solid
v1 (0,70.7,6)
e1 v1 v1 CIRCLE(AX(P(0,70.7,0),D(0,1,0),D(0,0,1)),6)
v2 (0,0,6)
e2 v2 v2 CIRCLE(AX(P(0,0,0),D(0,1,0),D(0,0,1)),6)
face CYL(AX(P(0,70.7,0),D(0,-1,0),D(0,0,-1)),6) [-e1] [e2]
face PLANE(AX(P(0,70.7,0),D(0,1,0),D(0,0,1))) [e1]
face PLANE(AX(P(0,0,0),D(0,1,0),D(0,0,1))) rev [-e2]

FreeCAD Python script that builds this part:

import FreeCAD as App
import Part
import Sketcher

V = App.Vector
Q = App.Units.Quantity

doc = App.newDocument("Part")
body = doc.addObject("PartDesign::Body", "Body")

sketch1 = doc.addObject("Sketcher::SketchObject", "Sketch")
body.addObject(sketch1)
sketch1.AttachmentSupport = (doc.XZ_Plane, [""])
sketch1.MapMode = "FlatFace"
sketch1.addGeometry(Part.Circle(V(0, 0, 0), V(0, 0, 1), 6), False)
sketch1.addConstraint([
    Sketcher.Constraint("Coincident", 0, 3, -1, 1),
    Sketcher.Constraint("Diameter", 0, Q("12 mm")),
])
pad1 = doc.addObject("PartDesign::Pad", "Pad")
body.addObject(pad1)
pad1.Profile = sketch1
pad1.Length = 70.7
pad1.Reversed = True

doc.recompute()
